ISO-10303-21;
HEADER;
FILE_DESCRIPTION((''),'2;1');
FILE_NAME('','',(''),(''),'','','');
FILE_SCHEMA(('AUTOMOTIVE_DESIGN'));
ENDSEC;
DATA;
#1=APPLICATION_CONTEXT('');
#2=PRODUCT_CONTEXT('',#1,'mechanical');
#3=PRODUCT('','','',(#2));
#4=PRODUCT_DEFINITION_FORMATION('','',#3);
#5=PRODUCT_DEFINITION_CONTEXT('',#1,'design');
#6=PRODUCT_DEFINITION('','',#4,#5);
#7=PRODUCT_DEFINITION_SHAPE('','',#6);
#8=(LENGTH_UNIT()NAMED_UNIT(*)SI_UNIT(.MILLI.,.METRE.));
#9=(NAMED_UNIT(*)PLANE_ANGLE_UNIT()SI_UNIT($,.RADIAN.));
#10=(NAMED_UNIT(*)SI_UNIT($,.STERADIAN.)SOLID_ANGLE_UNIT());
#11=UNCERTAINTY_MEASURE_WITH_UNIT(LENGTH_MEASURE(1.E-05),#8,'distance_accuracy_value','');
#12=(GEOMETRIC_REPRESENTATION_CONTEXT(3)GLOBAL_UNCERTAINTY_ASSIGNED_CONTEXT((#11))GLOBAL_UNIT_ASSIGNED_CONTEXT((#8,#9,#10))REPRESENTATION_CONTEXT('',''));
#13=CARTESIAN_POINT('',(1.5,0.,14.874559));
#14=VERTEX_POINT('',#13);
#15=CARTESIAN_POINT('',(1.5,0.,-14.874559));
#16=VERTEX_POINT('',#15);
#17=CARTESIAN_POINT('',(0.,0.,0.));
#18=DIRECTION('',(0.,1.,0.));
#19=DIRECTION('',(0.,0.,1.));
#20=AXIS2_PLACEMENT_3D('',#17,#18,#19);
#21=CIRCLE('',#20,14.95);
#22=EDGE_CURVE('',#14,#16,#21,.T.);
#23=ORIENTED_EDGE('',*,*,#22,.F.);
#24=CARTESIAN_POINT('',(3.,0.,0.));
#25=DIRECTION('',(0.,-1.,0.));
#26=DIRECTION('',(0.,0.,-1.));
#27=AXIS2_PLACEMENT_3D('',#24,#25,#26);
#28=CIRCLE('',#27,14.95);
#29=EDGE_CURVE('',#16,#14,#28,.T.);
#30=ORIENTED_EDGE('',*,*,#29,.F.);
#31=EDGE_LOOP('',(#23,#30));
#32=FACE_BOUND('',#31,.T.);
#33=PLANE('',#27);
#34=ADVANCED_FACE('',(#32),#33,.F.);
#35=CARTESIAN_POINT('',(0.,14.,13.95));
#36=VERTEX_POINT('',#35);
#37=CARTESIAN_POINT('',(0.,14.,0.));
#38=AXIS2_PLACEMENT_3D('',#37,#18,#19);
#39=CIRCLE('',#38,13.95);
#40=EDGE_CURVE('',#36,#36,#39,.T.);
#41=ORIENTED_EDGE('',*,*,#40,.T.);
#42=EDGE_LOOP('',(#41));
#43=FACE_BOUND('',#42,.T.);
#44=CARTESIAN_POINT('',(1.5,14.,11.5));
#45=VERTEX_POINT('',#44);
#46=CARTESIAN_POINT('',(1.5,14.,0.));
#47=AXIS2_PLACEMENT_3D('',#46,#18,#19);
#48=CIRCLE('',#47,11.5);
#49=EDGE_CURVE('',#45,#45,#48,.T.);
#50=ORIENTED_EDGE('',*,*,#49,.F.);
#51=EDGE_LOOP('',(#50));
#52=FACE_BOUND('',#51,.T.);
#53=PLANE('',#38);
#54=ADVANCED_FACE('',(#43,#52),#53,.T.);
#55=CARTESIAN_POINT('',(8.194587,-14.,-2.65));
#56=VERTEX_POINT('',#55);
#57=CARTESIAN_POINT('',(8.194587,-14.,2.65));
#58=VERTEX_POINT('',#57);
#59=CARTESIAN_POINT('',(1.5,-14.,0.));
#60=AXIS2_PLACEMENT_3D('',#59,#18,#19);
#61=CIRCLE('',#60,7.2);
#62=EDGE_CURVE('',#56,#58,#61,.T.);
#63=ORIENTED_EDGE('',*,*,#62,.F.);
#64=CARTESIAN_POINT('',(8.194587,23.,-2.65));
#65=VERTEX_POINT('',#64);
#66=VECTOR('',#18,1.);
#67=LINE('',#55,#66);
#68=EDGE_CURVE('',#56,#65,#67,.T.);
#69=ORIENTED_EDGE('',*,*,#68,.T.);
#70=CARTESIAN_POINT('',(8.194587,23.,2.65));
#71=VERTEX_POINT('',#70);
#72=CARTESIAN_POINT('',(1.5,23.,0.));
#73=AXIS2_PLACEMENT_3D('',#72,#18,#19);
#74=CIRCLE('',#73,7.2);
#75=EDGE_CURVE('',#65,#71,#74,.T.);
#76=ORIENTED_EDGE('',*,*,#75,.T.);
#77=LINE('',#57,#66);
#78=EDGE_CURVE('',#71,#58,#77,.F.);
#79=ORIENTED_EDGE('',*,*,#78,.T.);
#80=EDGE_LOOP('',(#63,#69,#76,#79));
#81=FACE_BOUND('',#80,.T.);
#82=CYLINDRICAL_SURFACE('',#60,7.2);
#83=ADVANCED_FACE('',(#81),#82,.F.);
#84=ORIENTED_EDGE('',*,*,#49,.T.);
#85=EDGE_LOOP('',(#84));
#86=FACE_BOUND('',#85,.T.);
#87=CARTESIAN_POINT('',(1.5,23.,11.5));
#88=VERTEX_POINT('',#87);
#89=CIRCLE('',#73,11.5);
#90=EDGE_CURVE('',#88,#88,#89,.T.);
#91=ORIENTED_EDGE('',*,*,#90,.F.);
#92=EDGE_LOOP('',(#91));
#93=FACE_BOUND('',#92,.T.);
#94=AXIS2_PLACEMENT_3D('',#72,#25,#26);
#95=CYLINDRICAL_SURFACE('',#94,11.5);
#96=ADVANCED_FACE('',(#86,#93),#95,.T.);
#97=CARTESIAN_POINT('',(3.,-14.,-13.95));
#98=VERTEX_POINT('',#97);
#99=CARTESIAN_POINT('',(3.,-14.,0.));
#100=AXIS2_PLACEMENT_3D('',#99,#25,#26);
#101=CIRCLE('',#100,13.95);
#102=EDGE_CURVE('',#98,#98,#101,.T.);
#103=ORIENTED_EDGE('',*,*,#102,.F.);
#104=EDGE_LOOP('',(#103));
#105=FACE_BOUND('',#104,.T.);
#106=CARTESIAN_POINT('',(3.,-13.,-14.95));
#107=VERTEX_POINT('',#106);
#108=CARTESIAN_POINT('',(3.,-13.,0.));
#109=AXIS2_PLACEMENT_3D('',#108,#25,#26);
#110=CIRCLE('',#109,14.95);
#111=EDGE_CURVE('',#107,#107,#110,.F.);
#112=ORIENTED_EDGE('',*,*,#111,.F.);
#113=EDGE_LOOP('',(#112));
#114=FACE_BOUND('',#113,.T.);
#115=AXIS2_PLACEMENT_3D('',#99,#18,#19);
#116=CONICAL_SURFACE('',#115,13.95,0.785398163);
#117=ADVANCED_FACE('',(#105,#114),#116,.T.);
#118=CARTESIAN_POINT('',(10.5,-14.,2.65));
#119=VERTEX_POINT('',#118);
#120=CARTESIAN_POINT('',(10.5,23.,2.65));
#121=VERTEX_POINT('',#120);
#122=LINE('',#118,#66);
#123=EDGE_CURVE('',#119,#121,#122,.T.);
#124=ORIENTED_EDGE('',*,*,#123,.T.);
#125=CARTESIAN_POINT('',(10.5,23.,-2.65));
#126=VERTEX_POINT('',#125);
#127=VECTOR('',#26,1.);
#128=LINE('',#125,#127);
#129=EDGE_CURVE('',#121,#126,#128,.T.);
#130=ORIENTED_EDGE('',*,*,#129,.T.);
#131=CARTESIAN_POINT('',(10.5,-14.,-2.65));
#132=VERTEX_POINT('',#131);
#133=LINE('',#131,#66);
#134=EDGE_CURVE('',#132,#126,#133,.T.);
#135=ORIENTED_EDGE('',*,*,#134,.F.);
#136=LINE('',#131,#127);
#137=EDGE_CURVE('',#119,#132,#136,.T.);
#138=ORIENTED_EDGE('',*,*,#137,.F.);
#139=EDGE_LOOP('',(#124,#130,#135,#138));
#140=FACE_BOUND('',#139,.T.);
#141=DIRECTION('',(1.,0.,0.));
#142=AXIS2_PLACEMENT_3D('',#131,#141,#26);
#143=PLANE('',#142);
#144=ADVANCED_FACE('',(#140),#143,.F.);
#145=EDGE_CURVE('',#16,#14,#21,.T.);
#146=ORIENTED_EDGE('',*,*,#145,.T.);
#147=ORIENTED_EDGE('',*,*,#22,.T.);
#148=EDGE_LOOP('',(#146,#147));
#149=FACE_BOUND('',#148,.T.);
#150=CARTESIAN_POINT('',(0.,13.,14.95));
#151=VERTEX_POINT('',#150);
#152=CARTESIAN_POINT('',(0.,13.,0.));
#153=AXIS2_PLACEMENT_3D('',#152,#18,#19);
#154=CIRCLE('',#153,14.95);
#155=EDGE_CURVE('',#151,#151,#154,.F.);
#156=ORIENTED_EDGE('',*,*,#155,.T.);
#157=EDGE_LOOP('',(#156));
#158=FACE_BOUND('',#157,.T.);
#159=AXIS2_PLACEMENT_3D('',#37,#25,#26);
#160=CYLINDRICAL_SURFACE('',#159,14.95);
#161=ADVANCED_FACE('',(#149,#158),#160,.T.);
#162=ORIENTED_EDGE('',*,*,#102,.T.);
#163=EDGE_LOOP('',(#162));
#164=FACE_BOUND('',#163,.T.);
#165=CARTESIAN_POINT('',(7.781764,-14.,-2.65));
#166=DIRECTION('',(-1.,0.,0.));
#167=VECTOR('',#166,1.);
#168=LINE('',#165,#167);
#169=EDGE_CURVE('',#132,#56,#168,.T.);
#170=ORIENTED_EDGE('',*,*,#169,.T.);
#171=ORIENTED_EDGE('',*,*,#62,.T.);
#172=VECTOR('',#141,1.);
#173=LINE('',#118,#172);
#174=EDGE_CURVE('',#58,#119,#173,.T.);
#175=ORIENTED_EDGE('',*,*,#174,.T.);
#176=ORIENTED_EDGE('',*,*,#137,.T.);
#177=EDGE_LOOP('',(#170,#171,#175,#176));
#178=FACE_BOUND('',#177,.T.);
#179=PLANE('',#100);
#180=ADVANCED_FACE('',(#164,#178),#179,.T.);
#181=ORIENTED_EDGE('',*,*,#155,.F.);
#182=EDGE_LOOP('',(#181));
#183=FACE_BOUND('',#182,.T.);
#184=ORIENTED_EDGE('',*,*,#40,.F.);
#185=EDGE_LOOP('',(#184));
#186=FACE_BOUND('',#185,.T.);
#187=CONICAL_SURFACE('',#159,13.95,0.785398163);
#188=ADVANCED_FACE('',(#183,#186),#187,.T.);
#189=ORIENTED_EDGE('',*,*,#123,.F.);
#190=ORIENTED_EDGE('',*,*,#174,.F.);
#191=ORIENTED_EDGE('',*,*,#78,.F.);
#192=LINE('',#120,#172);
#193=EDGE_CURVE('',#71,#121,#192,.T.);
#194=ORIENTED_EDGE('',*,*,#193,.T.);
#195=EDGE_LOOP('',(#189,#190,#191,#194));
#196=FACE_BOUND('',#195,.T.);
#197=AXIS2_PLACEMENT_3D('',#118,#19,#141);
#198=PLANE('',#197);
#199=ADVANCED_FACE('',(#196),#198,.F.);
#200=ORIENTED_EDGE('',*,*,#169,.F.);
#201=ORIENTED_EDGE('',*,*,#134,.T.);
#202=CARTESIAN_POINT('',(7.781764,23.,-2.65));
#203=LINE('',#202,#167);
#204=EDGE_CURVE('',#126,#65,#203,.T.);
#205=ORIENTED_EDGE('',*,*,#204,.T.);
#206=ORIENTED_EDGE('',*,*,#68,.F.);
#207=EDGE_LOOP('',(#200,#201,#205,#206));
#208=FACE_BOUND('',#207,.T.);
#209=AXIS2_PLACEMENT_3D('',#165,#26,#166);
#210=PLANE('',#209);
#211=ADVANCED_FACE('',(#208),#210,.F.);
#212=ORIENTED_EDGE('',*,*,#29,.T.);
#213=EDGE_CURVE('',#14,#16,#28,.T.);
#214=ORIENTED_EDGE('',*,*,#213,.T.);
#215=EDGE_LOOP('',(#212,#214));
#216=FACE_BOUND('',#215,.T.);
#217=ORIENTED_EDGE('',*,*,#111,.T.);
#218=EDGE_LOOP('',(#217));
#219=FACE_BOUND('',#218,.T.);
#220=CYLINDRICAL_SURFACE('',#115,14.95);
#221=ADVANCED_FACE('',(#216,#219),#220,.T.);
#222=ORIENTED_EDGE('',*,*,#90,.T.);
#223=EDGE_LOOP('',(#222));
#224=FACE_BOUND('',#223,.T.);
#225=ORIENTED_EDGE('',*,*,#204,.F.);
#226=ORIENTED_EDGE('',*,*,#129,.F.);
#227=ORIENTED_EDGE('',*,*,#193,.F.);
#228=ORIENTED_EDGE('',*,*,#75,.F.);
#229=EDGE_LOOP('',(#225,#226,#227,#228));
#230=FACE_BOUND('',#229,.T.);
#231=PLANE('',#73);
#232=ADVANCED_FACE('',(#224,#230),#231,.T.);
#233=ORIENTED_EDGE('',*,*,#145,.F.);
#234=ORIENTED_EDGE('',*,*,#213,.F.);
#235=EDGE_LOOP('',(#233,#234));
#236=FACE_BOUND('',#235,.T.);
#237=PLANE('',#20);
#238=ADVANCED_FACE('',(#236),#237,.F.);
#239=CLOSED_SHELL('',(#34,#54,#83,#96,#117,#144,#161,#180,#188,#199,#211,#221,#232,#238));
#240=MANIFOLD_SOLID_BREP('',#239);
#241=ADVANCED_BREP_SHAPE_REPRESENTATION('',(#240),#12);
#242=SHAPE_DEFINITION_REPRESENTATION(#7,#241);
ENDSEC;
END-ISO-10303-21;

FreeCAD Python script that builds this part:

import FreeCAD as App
import Part
import Sketcher
from FreeCAD import Vector
Q = App.Units.Quantity


def edges_at(feature, points):
    """Names of the edges that pass closest to the given points."""
    edges = feature.Shape.Edges
    near = lambda p: min(range(len(edges)), key=lambda i: edges[i].distToShape(Part.Vertex(*p))[0])
    return sorted({f"Edge{near(p) + 1}" for p in points})


def add_polygon(sketch, points):
    """Adds a closed chain of lines whose ends are joined by coincident constraints."""
    first, n = sketch.GeometryCount, len(points)
    for a, b in zip(points, points[1:] + points[:1]):
        sketch.addGeometry(Part.LineSegment(App.Vector(*a, 0), App.Vector(*b, 0)), False)
    for i in range(n):
        sketch.addConstraint(Sketcher.Constraint("Coincident", first + i, 2, first + (i + 1) % n, 1))

doc = App.newDocument("Part")
body = doc.addObject("PartDesign::Body", "Body")

# Sketch on XZ plane
sketch1 = body.newObject("Sketcher::SketchObject", "Sketch")
sketch1.AttachmentSupport = (doc.getObject("XZ_Plane"), [""])
sketch1.MapMode = "FlatFace"
sketch1.addGeometry(Part.Circle(Vector(0, 0, 0), Vector(0, 0, 1), 15), False)
sketch1.addConstraint([
    Sketcher.Constraint("Coincident", 0, 3, -1, 1),
    Sketcher.Constraint("Diameter", 0, Q("29.9 mm")),
])
pad1 = body.newObject("PartDesign::Pad", "Pad")
pad1.Profile = sketch1
pad1.Length = 14
pad1.Reversed = True

# Sketch on XZ plane
sketch2 = body.newObject("Sketcher::SketchObject", "Sketch001")
sketch2.AttachmentSupport = (doc.getObject("XZ_Plane"), [""])
sketch2.MapMode = "FlatFace"
sketch2.addGeometry(Part.Circle(Vector(3, 0, 0), Vector(0, 0, 1), 15), False)
sketch2.addConstraint([
    Sketcher.Constraint("PointOnObject", 0, 3, -1),
    Sketcher.Constraint("Diameter", 0, Q("29.9 mm")),
    Sketcher.Constraint("DistanceX", -1, 1, 0, 3, Q("3 mm")),
])
pad2 = body.newObject("PartDesign::Pad", "Pad001")
pad2.Profile = sketch2
pad2.Length = 14
doc.recompute()

chamfer = body.newObject("PartDesign::Chamfer", "Chamfer")
chamfer.Base = (pad2, edges_at(pad2, [(0, 14, -14.95), (4.5, -14, -14.875)]))
chamfer.Size = 1

# Sketch on XZ plane
sketch3 = body.newObject("Sketcher::SketchObject", "Sketch002")
sketch3.AttachmentSupport = (doc.getObject("XZ_Plane"), [""])
sketch3.MapMode = "FlatFace"
sketch3.AttachmentOffset = App.Placement(Vector(0, 0, -14), App.Rotation())
sketch3.addGeometry(Part.Circle(Vector(2, 0, 0), Vector(0, 0, 1), 12), False)
sketch3.addConstraint([
    Sketcher.Constraint("PointOnObject", 0, 3, -1),
    Sketcher.Constraint("Diameter", 0, Q("23 mm")),
    Sketcher.Constraint("DistanceX", -1, 1, 0, 3, Q("1.5 mm")),
])
pad3 = body.newObject("PartDesign::Pad", "Pad002")
pad3.Profile = sketch3
pad3.Length = 9
pad3.Reversed = True

# Sketch on XZ plane
sketch4 = body.newObject("Sketcher::SketchObject", "Sketch003")
sketch4.AttachmentSupport = (doc.getObject("XZ_Plane"), [""])
sketch4.MapMode = "FlatFace"
sketch4.AttachmentOffset = App.Placement(Vector(0, 0, -14), App.Rotation())
sketch4.addGeometry(Part.Circle(Vector(2, 0, 0), Vector(0, 0, 1), 7), False)
sketch4.addConstraint([
    Sketcher.Constraint("PointOnObject", 0, 3, -1),
    Sketcher.Constraint("Diameter", 0, Q("14.4 mm")),
    Sketcher.Constraint("DistanceX", -1, 1, 0, 3, Q("1.5 mm")),
])
pocket1 = body.newObject("PartDesign::Pocket", "Pocket")
pocket1.Profile = sketch4
pocket1.Type = "ThroughAll"
pocket1.Midplane = True

# Sketch on XZ plane
sketch5 = body.newObject("Sketcher::SketchObject", "Sketch004")
sketch5.AttachmentSupport = (doc.getObject("XZ_Plane"), [""])
sketch5.MapMode = "FlatFace"
sketch5.AttachmentOffset = App.Placement(Vector(0, 0, -14), App.Rotation())
add_polygon(sketch5, [(7.8, -2.6), (7.8, 2.6), (10.5, 2.6), (10.5, -2.6)])  # lines 0-3
sketch5.addConstraint([
    Sketcher.Constraint("Vertical", 0),
    Sketcher.Constraint("Horizontal", 1),
    Sketcher.Constraint("Vertical", 2),
    Sketcher.Constraint("Horizontal", 3),
    Sketcher.Constraint("DistanceY", 0, 1, 0, 2, Q("5.3 mm")),
    Sketcher.Constraint("DistanceX", -1, 1, 1, 2, Q("10.5 mm")),
    Sketcher.Constraint("DistanceY", -1, 1, 0, 2, Q("2.65 mm")),
    Sketcher.Constraint("DistanceX", 1, 1, 1, 2, Q("2.718236 mm")),
])
pocket2 = body.newObject("PartDesign::Pocket", "Pocket001")
pocket2.Profile = sketch5
pocket2.Type = "ThroughAll"
pocket2.Midplane = True

doc.recompute()
